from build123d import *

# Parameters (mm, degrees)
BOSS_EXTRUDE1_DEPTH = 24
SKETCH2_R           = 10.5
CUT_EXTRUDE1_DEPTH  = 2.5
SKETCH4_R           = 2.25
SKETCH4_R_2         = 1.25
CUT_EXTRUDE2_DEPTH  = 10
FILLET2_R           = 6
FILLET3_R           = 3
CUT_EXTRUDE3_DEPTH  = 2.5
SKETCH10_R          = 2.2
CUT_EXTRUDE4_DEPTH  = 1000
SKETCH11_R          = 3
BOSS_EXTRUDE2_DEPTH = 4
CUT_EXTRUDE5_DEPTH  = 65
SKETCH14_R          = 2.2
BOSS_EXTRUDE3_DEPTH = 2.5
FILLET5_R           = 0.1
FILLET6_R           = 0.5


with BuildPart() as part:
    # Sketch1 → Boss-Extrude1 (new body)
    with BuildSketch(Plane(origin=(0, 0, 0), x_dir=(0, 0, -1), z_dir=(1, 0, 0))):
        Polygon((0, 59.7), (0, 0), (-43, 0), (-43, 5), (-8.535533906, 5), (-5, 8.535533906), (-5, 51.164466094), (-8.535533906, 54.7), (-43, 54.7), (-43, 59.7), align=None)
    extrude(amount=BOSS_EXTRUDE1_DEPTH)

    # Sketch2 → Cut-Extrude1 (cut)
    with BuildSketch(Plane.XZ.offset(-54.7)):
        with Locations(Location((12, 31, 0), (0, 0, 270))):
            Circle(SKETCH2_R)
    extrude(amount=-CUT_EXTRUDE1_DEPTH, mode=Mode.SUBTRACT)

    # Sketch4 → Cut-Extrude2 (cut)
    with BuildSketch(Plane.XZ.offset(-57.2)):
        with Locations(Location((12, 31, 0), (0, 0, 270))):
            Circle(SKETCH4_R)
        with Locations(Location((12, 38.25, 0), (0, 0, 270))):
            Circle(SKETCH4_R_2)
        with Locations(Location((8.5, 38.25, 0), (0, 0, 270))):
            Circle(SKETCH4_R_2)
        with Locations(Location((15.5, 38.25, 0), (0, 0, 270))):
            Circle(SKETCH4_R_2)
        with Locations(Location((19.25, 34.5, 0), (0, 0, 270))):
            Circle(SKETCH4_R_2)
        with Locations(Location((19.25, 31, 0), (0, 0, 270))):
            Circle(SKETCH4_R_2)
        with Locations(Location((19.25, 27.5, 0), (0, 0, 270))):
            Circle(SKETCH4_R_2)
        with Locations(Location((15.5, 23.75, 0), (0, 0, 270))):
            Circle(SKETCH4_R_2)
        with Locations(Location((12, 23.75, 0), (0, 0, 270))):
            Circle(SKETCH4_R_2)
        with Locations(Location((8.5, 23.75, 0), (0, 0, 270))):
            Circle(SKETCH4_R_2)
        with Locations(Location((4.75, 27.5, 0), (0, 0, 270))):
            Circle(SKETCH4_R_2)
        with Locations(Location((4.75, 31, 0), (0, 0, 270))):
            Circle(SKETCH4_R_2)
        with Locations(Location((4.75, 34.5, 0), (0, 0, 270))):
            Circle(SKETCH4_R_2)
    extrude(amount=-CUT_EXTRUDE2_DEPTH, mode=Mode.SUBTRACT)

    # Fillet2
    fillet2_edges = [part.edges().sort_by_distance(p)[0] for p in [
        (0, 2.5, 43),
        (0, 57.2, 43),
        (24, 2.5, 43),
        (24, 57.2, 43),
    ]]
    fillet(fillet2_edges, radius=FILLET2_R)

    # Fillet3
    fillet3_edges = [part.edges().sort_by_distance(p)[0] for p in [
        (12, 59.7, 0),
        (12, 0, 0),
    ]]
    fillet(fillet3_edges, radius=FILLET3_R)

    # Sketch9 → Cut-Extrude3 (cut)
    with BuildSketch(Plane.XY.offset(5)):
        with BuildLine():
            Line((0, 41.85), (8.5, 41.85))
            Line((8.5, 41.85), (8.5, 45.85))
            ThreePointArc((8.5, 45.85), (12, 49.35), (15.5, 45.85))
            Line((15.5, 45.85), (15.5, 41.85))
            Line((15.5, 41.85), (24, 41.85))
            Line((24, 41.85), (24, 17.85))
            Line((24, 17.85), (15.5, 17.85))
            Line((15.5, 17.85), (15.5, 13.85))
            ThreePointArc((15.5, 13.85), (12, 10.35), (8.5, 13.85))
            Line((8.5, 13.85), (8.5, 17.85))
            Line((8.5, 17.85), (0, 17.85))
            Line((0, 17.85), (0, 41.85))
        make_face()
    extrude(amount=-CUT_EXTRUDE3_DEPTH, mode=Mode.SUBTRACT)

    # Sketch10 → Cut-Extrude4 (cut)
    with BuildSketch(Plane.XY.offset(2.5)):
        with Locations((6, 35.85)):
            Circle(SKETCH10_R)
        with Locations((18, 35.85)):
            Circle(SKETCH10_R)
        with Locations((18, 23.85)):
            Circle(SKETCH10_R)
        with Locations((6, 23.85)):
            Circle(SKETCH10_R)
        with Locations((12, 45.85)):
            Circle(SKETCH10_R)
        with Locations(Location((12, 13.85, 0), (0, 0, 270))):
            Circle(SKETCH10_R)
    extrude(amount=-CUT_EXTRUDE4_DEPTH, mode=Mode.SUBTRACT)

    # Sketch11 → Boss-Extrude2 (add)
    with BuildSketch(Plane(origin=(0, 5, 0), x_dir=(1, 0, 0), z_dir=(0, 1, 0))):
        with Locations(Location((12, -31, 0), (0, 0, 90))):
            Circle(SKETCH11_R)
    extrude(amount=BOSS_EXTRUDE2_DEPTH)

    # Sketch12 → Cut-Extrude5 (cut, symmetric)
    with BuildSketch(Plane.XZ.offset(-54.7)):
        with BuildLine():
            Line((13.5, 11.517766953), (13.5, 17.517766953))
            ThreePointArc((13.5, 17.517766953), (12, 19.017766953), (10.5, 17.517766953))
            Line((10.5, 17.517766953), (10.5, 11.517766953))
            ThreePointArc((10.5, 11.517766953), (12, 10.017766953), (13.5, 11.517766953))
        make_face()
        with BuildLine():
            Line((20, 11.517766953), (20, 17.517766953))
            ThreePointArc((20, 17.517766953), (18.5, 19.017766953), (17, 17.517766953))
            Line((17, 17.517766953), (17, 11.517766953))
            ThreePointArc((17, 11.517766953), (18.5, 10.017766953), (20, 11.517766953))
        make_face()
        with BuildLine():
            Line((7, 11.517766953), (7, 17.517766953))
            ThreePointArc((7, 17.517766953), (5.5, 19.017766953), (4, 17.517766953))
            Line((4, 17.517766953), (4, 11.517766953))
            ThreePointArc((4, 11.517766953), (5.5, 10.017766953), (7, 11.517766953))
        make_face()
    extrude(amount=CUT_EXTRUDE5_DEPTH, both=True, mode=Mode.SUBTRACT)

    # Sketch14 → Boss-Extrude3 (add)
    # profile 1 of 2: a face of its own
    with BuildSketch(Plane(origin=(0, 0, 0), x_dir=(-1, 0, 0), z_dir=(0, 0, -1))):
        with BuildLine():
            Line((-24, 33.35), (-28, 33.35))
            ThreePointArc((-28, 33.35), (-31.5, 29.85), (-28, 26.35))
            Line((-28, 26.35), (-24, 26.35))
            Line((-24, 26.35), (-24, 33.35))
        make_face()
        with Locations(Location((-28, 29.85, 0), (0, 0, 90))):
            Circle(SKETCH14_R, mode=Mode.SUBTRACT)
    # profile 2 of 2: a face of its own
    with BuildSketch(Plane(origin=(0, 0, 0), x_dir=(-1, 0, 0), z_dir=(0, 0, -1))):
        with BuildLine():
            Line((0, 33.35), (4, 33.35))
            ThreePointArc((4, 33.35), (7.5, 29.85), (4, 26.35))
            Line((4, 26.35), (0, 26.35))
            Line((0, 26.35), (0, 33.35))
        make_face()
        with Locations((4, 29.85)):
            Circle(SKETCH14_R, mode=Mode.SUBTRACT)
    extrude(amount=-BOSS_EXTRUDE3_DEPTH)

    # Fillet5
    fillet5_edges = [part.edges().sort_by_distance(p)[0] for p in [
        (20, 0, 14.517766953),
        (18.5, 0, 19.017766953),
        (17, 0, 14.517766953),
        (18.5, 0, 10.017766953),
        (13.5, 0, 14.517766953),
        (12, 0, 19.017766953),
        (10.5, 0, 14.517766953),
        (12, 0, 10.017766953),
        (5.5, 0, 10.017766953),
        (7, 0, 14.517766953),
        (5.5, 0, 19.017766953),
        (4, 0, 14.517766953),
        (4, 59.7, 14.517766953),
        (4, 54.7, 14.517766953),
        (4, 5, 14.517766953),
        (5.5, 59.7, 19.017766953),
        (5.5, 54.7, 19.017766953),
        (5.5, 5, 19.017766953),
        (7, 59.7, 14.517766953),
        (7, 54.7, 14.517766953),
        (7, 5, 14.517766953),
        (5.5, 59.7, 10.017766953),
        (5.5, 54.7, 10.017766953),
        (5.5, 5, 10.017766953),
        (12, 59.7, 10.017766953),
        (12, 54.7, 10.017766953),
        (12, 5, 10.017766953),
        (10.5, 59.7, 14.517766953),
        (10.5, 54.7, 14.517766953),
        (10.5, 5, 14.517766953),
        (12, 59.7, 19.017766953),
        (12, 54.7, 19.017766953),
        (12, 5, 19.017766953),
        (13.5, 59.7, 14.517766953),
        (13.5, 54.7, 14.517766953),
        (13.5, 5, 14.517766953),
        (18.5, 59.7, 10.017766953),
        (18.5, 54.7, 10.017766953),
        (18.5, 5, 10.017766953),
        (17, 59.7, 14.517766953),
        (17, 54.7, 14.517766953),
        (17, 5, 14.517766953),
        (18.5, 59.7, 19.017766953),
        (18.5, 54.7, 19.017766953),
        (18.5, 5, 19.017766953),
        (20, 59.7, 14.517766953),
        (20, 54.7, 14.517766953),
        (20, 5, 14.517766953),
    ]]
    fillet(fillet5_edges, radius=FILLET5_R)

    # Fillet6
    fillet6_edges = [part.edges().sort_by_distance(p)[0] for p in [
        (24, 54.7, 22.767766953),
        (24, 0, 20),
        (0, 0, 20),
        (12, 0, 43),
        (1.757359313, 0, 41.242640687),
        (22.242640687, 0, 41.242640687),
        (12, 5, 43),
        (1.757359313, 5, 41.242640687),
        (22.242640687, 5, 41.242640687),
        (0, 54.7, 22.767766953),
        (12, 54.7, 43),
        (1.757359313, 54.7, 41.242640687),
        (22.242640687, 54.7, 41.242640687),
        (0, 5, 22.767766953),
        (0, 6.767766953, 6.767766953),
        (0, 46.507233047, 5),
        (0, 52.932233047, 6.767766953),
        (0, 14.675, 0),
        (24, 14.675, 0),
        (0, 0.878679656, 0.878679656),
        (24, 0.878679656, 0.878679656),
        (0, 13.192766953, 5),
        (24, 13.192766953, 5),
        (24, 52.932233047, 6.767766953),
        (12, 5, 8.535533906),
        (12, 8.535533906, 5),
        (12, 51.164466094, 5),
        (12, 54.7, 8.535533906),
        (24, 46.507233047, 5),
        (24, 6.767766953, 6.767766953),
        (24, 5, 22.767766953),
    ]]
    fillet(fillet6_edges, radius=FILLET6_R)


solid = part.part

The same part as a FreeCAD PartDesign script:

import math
import FreeCAD as App
import Part
import Sketcher
Q = App.Units.Quantity


def edges_at(feature, points):
    """Names of the edges that pass closest to the given points."""
    edges = feature.Shape.Edges
    near = lambda p: min(range(len(edges)), key=lambda i: edges[i].distToShape(Part.Vertex(*p))[0])
    return sorted({f"Edge{near(p) + 1}" for p in points})


def add_polygon(sketch, points):
    """Adds a closed chain of lines whose ends are joined by coincident constraints."""
    first, n = sketch.GeometryCount, len(points)
    for a, b in zip(points, points[1:] + points[:1]):
        sketch.addGeometry(Part.LineSegment(App.Vector(*a, 0), App.Vector(*b, 0)), False)
    for i in range(n):
        sketch.addConstraint(Sketcher.Constraint("Coincident", first + i, 2, first + (i + 1) % n, 1))

doc = App.newDocument("Part")
body = doc.addObject("PartDesign::Body", "Body")

# Sketch on YZ plane
sketch1 = doc.addObject("Sketcher::SketchObject", "Sketch")
body.addObject(sketch1)
sketch1.AttachmentSupport = (doc.YZ_Plane, [""])
sketch1.MapMode = "FlatFace"
add_polygon(sketch1, [(0, 0), (60, 0), (60, 43), (55, 43), (55, 9), (51, 5), (9, 5), (5, 9), (5, 43), (0, 43)])  # lines 0-9
sketch1.addConstraint(Sketcher.Constraint("Horizontal", 0))
sketch1.addConstraint(Sketcher.Constraint("Vertical", 1))
sketch1.addConstraint(Sketcher.Constraint("Horizontal", 2))
sketch1.addConstraint(Sketcher.Constraint("Vertical", 3))
sketch1.addConstraint(Sketcher.Constraint("Horizontal", 5))
sketch1.addConstraint(Sketcher.Constraint("Vertical", 7))
sketch1.addConstraint(Sketcher.Constraint("Horizontal", 8))
sketch1.addConstraint(Sketcher.Constraint("Vertical", 9))
sketch1.addConstraint(Sketcher.Constraint("Coincident", 9, 2, -1, 1))
sketch1.addConstraint(Sketcher.Constraint("Perpendicular", 4, 6))
sketch1.addConstraint(Sketcher.Constraint("Horizontal", 3, 2, 6, 2))
sketch1.addConstraint(Sketcher.Constraint("Horizontal", 2, 2, 7, 2))
sketch1.addConstraint(Sketcher.Constraint("Equal", 2, 8))
sketch1.addConstraint(Sketcher.Constraint("Equal", 4, 6))
sketch1.addConstraint(Sketcher.Constraint("DistanceX", 2, 2, 2, 1, Q("5 mm")))
sketch1.addConstraint(Sketcher.Constraint("DistanceY", 1, 1, 1, 2, Q("43 mm")))
sketch1.addConstraint(Sketcher.Constraint("Distance", 4, Q("5 mm")))
sketch1.addConstraint(Sketcher.Constraint("DistanceX", 0, 1, 0, 2, Q("59.7 mm")))
sketch1.addConstraint(Sketcher.Constraint("DistanceY", -1, 1, 4, 2, Q("5 mm")))
pad1 = doc.addObject("PartDesign::Pad", "Pad")
body.addObject(pad1)
pad1.Profile = sketch1
pad1.Length = 24

# Sketch on XZ plane
sketch2 = doc.addObject("Sketcher::SketchObject", "Sketch001")
body.addObject(sketch2)
sketch2.AttachmentSupport = (doc.XZ_Plane, [""])
sketch2.MapMode = "FlatFace"
sketch2.AttachmentOffset = App.Placement(App.Vector(0, 0, -54.7), App.Rotation())
sketch2.addGeometry(Part.Circle(App.Vector(12, 31, 0), App.Vector(0, 0, 1), 10), False)
sketch2.addConstraint(Sketcher.Constraint("Diameter", 0, Q("21 mm")))
sketch2.addConstraint(Sketcher.Constraint("DistanceX", -1, 1, 0, 3, Q("12 mm")))
sketch2.addConstraint(Sketcher.Constraint("DistanceY", -1, 1, 0, 3, Q("31 mm")))
pocket1 = doc.addObject("PartDesign::Pocket", "Pocket")
body.addObject(pocket1)
pocket1.Profile = sketch2
pocket1.Length = 2.5

# Sketch on XZ plane
sketch3 = doc.addObject("Sketcher::SketchObject", "Sketch002")
body.addObject(sketch3)
sketch3.AttachmentSupport = (doc.XZ_Plane, [""])
sketch3.MapMode = "FlatFace"
sketch3.AttachmentOffset = App.Placement(App.Vector(0, 0, -57.2), App.Rotation())
sketch3.addGeometry(Part.Circle(App.Vector(12, 31, 0), App.Vector(0, 0, 1), 2.2), False)
sketch3.addGeometry(Part.Circle(App.Vector(12, 38.2, 0), App.Vector(0, 0, 1), 1.2), False)
sketch3.addGeometry(Part.Circle(App.Vector(8.5, 38.2, 0), App.Vector(0, 0, 1), 1.2), False)
sketch3.addGeometry(Part.Circle(App.Vector(15.5, 38.2, 0), App.Vector(0, 0, 1), 1.2), False)
sketch3.addGeometry(Part.Circle(App.Vector(19.2, 34.5, 0), App.Vector(0, 0, 1), 1.2), False)
sketch3.addGeometry(Part.Circle(App.Vector(19.2, 31, 0), App.Vector(0, 0, 1), 1.2), False)
sketch3.addGeometry(Part.Circle(App.Vector(19.2, 27.5, 0), App.Vector(0, 0, 1), 1.2), False)
sketch3.addGeometry(Part.Circle(App.Vector(15.5, 23.8, 0), App.Vector(0, 0, 1), 1.2), False)
sketch3.addGeometry(Part.Circle(App.Vector(12, 23.8, 0), App.Vector(0, 0, 1), 1.2), False)
sketch3.addGeometry(Part.Circle(App.Vector(8.5, 23.8, 0), App.Vector(0, 0, 1), 1.2), False)
sketch3.addGeometry(Part.Circle(App.Vector(4.8, 27.5, 0), App.Vector(0, 0, 1), 1.2), False)
sketch3.addGeometry(Part.Circle(App.Vector(4.8, 31, 0), App.Vector(0, 0, 1), 1.2), False)
sketch3.addGeometry(Part.Circle(App.Vector(4.8, 34.5, 0), App.Vector(0, 0, 1), 1.2), False)
sketch3.addConstraint(Sketcher.Constraint("Equal", 1, 2))
sketch3.addConstraint(Sketcher.Constraint("Equal", 2, 3))
sketch3.addConstraint(Sketcher.Constraint("Equal", 3, 4))
sketch3.addConstraint(Sketcher.Constraint("Equal", 4, 5))
sketch3.addConstraint(Sketcher.Constraint("Equal", 5, 6))
sketch3.addConstraint(Sketcher.Constraint("Equal", 6, 7))
sketch3.addConstraint(Sketcher.Constraint("Equal", 7, 8))
sketch3.addConstraint(Sketcher.Constraint("Equal", 8, 9))
sketch3.addConstraint(Sketcher.Constraint("Equal", 9, 10))
sketch3.addConstraint(Sketcher.Constraint("Equal", 10, 11))
sketch3.addConstraint(Sketcher.Constraint("Equal", 11, 12))
sketch3.addConstraint(Sketcher.Constraint("Horizontal", 1, 3, 2, 3))
sketch3.addConstraint(Sketcher.Constraint("Horizontal", 2, 3, 3, 3))
sketch3.addConstraint(Sketcher.Constraint("Horizontal", 0, 3, 5, 3))
sketch3.addConstraint(Sketcher.Constraint("Horizontal", 7, 3, 8, 3))
sketch3.addConstraint(Sketcher.Constraint("Horizontal", 8, 3, 9, 3))
sketch3.addConstraint(Sketcher.Constraint("Horizontal", 6, 3, 10, 3))
sketch3.addConstraint(Sketcher.Constraint("Horizontal", 5, 3, 11, 3))
sketch3.addConstraint(Sketcher.Constraint("Horizontal", 4, 3, 12, 3))
sketch3.addConstraint(Sketcher.Constraint("Vertical", 0, 3, 1, 3))
sketch3.addConstraint(Sketcher.Constraint("Vertical", 4, 3, 5, 3))
sketch3.addConstraint(Sketcher.Constraint("Vertical", 5, 3, 6, 3))
sketch3.addConstraint(Sketcher.Constraint("Vertical", 3, 3, 7, 3))
sketch3.addConstraint(Sketcher.Constraint("Vertical", 1, 3, 8, 3))
sketch3.addConstraint(Sketcher.Constraint("Vertical", 2, 3, 9, 3))
sketch3.addConstraint(Sketcher.Constraint("Vertical", 10, 3, 11, 3))
sketch3.addConstraint(Sketcher.Constraint("Vertical", 11, 3, 12, 3))
sketch3.addConstraint(Sketcher.Constraint("Diameter", 0, Q("4.5 mm")))
sketch3.addConstraint(Sketcher.Constraint("Diameter", 1, Q("2.5 mm")))
sketch3.addConstraint(Sketcher.Constraint("DistanceX", -1, 1, 0, 3, Q("12 mm")))
sketch3.addConstraint(Sketcher.Constraint("DistanceY", -1, 1, 0, 3, Q("31 mm")))
sketch3.addConstraint(Sketcher.Constraint("DistanceX", 2, 3, 3, 3, Q("7 mm")))
sketch3.addConstraint(Sketcher.Constraint("DistanceY", 6, 3, 4, 3, Q("7 mm")))
sketch3.addConstraint(Sketcher.Constraint("DistanceX", -1, 1, 2, 3, Q("8.5 mm")))
sketch3.addConstraint(Sketcher.Constraint("DistanceY", -1, 1, 4, 3, Q("34.5 mm")))
sketch3.addConstraint(Sketcher.Constraint("DistanceY", 7, 3, 3, 3, Q("14.5 mm")))
sketch3.addConstraint(Sketcher.Constraint("DistanceY", -1, 1, 1, 3, Q("38.25 mm")))
sketch3.addConstraint(Sketcher.Constraint("DistanceX", -1, 1, 4, 3, Q("19.25 mm")))
sketch3.addConstraint(Sketcher.Constraint("DistanceX", -1, 1, 10, 3, Q("4.75 mm")))
pocket2 = doc.addObject("PartDesign::Pocket", "Pocket001")
body.addObject(pocket2)
pocket2.Profile = sketch3
pocket2.Length = 10
doc.recompute()

fillet = doc.addObject("PartDesign::Fillet", "Fillet")
body.addObject(fillet)
fillet.Base = (pocket2, edges_at(pocket2, [
    (0, 2.5, 43),
    (0, 57.2, 43),
    (24, 2.5, 43),
    (24, 57.2, 43),
]))
fillet.Radius = 6
doc.recompute()

fillet2 = doc.addObject("PartDesign::Fillet", "Fillet001")
body.addObject(fillet2)
fillet2.Base = (fillet, edges_at(fillet, [(12, 59.7, 0), (12, 0, 0)]))
fillet2.Radius = 3

# Sketch on XY plane
sketch4 = doc.addObject("Sketcher::SketchObject", "Sketch003")
body.addObject(sketch4)
sketch4.AttachmentSupport = (doc.XY_Plane, [""])
sketch4.MapMode = "FlatFace"
sketch4.AttachmentOffset = App.Placement(App.Vector(0, 0, 5), App.Rotation())
sketch4.addGeometry(Part.LineSegment(App.Vector(8.5, 41.9, 0), App.Vector(0, 41.9, 0)), False)
sketch4.addGeometry(Part.LineSegment(App.Vector(0, 41.9, 0), App.Vector(0, 17.9, 0)), False)
sketch4.addGeometry(Part.LineSegment(App.Vector(0, 17.9, 0), App.Vector(8.5, 17.9, 0)), False)
sketch4.addGeometry(Part.LineSegment(App.Vector(8.5, 17.9, 0), App.Vector(8.5, 13.8, 0)), False)
sketch4.addGeometry(Part.ArcOfCircle(Part.Circle(App.Vector(12, 13.8, 0), App.Vector(0, 0, 1), 3.5), math.radians(180), math.radians(360)), False)
sketch4.addGeometry(Part.LineSegment(App.Vector(15.5, 13.8, 0), App.Vector(15.5, 17.9, 0)), False)
sketch4.addGeometry(Part.LineSegment(App.Vector(15.5, 17.9, 0), App.Vector(24, 17.9, 0)), False)
sketch4.addGeometry(Part.LineSegment(App.Vector(24, 17.9, 0), App.Vector(24, 41.9, 0)), False)
sketch4.addGeometry(Part.LineSegment(App.Vector(24, 41.9, 0), App.Vector(15.5, 41.9, 0)), False)
sketch4.addGeometry(Part.LineSegment(App.Vector(15.5, 41.9, 0), App.Vector(15.5, 45.9, 0)), False)
sketch4.addGeometry(Part.ArcOfCircle(Part.Circle(App.Vector(12, 45.9, 0), App.Vector(0, 0, 1), 3.5), math.radians(0), math.radians(180)), False)
sketch4.addGeometry(Part.LineSegment(App.Vector(8.5, 45.9, 0), App.Vector(8.5, 41.9, 0)), False)
sketch4.addConstraint(Sketcher.Constraint("Coincident", 0, 2, 1, 1))
sketch4.addConstraint(Sketcher.Constraint("Coincident", 1, 2, 2, 1))
sketch4.addConstraint(Sketcher.Constraint("Coincident", 2, 2, 3, 1))
sketch4.addConstraint(Sketcher.Constraint("Tangent", 3, 2, 4, 1))
sketch4.addConstraint(Sketcher.Constraint("Tangent", 4, 2, 5, 1))
sketch4.addConstraint(Sketcher.Constraint("Coincident", 5, 2, 6, 1))
sketch4.addConstraint(Sketcher.Constraint("Coincident", 6, 2, 7, 1))
sketch4.addConstraint(Sketcher.Constraint("Coincident", 7, 2, 8, 1))
sketch4.addConstraint(Sketcher.Constraint("Coincident", 8, 2, 9, 1))
sketch4.addConstraint(Sketcher.Constraint("Tangent", 9, 2, 10, 1))
sketch4.addConstraint(Sketcher.Constraint("Tangent", 10, 2, 11, 1))
sketch4.addConstraint(Sketcher.Constraint("Coincident", 11, 2, 0, 1))
sketch4.addConstraint(Sketcher.Constraint("Horizontal", 0))
sketch4.addConstraint(Sketcher.Constraint("Vertical", 1))
sketch4.addConstraint(Sketcher.Constraint("Horizontal", 2))
sketch4.addConstraint(Sketcher.Constraint("Vertical", 3))
sketch4.addConstraint(Sketcher.Constraint("Vertical", 5))
sketch4.addConstraint(Sketcher.Constraint("Horizontal", 6))
sketch4.addConstraint(Sketcher.Constraint("Vertical", 7))
sketch4.addConstraint(Sketcher.Constraint("Horizontal", 8))
sketch4.addConstraint(Sketcher.Constraint("Vertical", 9))
sketch4.addConstraint(Sketcher.Constraint("Vertical", 11))
sketch4.addConstraint(Sketcher.Constraint("Equal", 4, 10))
sketch4.addConstraint(Sketcher.Constraint("PointOnObject", 0, 2, -2))
sketch4.addConstraint(Sketcher.Constraint("Horizontal", 2, 2, 5, 2))
sketch4.addConstraint(Sketcher.Constraint("Horizontal", 0, 2, 7, 2))
sketch4.addConstraint(Sketcher.Constraint("Vertical", 4, 3, 10, 3))
sketch4.addConstraint(Sketcher.Constraint("Equal", 2, 6))
sketch4.addConstraint(Sketcher.Constraint("Equal", 5, 9))
sketch4.addConstraint(Sketcher.Constraint("Radius", 4, Q("3.5 mm")))
sketch4.addConstraint(Sketcher.Constraint("DistanceY", 1, 2, 1, 1, Q("24 mm")))
sketch4.addConstraint(Sketcher.Constraint("DistanceY", 3, 2, 3, 1, Q("4 mm")))
sketch4.addConstraint(Sketcher.Constraint("DistanceX", 0, 2, 0, 1, Q("8.5 mm")))
sketch4.addConstraint(Sketcher.Constraint("DistanceY", -1, 1, 4, 3, Q("13.85 mm")))
pocket3 = doc.addObject("PartDesign::Pocket", "Pocket002")
body.addObject(pocket3)
pocket3.Profile = sketch4
pocket3.Length = 2.5

# Sketch on XY plane
sketch5 = doc.addObject("Sketcher::SketchObject", "Sketch004")
body.addObject(sketch5)
sketch5.AttachmentSupport = (doc.XY_Plane, [""])
sketch5.MapMode = "FlatFace"
sketch5.AttachmentOffset = App.Placement(App.Vector(0, 0, 2.5), App.Rotation())
sketch5.addGeometry(Part.Circle(App.Vector(6, 35.9, 0), App.Vector(0, 0, 1), 2.2), False)
sketch5.addGeometry(Part.Circle(App.Vector(18, 35.9, 0), App.Vector(0, 0, 1), 2.2), False)
sketch5.addGeometry(Part.Circle(App.Vector(18, 23.9, 0), App.Vector(0, 0, 1), 2.2), False)
sketch5.addGeometry(Part.Circle(App.Vector(6, 23.9, 0), App.Vector(0, 0, 1), 2.2), False)
sketch5.addGeometry(Part.Circle(App.Vector(12, 45.9, 0), App.Vector(0, 0, 1), 2.2), False)
sketch5.addGeometry(Part.Circle(App.Vector(12, 13.8, 0), App.Vector(0, 0, 1), 2.2), False)
sketch5.addConstraint(Sketcher.Constraint("Equal", 0, 1))
sketch5.addConstraint(Sketcher.Constraint("Equal", 1, 2))
sketch5.addConstraint(Sketcher.Constraint("Equal", 2, 3))
sketch5.addConstraint(Sketcher.Constraint("Equal", 3, 4))
sketch5.addConstraint(Sketcher.Constraint("Equal", 4, 5))
sketch5.addConstraint(Sketcher.Constraint("Horizontal", 0, 3, 1, 3))
sketch5.addConstraint(Sketcher.Constraint("Horizontal", 2, 3, 3, 3))
sketch5.addConstraint(Sketcher.Constraint("Vertical", 1, 3, 2, 3))
sketch5.addConstraint(Sketcher.Constraint("Vertical", 0, 3, 3, 3))
sketch5.addConstraint(Sketcher.Constraint("Vertical", 4, 3, 5, 3))
sketch5.addConstraint(Sketcher.Constraint("Diameter", 0, Q("4.4 mm")))
sketch5.addConstraint(Sketcher.Constraint("DistanceX", -1, 1, 0, 3, Q("6 mm")))
sketch5.addConstraint(Sketcher.Constraint("DistanceX", -1, 1, 1, 3, Q("18 mm")))
sketch5.addConstraint(Sketcher.Constraint("DistanceX", -1, 1, 4, 3, Q("12 mm")))
sketch5.addConstraint(Sketcher.Constraint("DistanceY", 2, 3, 1, 3, Q("12 mm")))
sketch5.addConstraint(Sketcher.Constraint("DistanceY", 0, 3, 4, 3, Q("10 mm")))
sketch5.addConstraint(Sketcher.Constraint("DistanceY", 5, 3, 2, 3, Q("10 mm")))
sketch5.addConstraint(Sketcher.Constraint("DistanceY", -1, 1, 0, 3, Q("35.85 mm")))
pocket4 = doc.addObject("PartDesign::Pocket", "Pocket003")
body.addObject(pocket4)
pocket4.Profile = sketch5
pocket4.Length = 1000

# Sketch on XZ plane
sketch6 = doc.addObject("Sketcher::SketchObject", "Sketch005")
body.addObject(sketch6)
sketch6.AttachmentSupport = (doc.XZ_Plane, [""])
sketch6.MapMode = "FlatFace"
sketch6.AttachmentOffset = App.Placement(App.Vector(0, 0, -5), App.Rotation())
sketch6.addGeometry(Part.Circle(App.Vector(12, 31, 0), App.Vector(0, 0, 1), 3), False)
sketch6.addConstraint(Sketcher.Constraint("Diameter", 0, Q("6 mm")))
sketch6.addConstraint(Sketcher.Constraint("DistanceX", -1, 1, 0, 3, Q("12 mm")))
sketch6.addConstraint(Sketcher.Constraint("DistanceY", -1, 1, 0, 3, Q("31 mm")))
pad2 = doc.addObject("PartDesign::Pad", "Pad001")
body.addObject(pad2)
pad2.Profile = sketch6
pad2.Length = 4
pad2.Reversed = True

# Sketch on XZ plane
sketch7 = doc.addObject("Sketcher::SketchObject", "Sketch006")
body.addObject(sketch7)
sketch7.AttachmentSupport = (doc.XZ_Plane, [""])
sketch7.MapMode = "FlatFace"
sketch7.AttachmentOffset = App.Placement(App.Vector(0, 0, -54.7), App.Rotation())
sketch7.addGeometry(Part.LineSegment(App.Vector(13.5, 11.5, 0), App.Vector(13.5, 17.5, 0)), False)
sketch7.addGeometry(Part.ArcOfCircle(Part.Circle(App.Vector(12, 17.5, 0), App.Vector(0, 0, 1), 1.5), math.radians(0), math.radians(180)), False)
sketch7.addGeometry(Part.LineSegment(App.Vector(10.5, 17.5, 0), App.Vector(10.5, 11.5, 0)), False)
sketch7.addGeometry(Part.ArcOfCircle(Part.Circle(App.Vector(12, 11.5, 0), App.Vector(0, 0, 1), 1.5), math.radians(180), math.radians(360)), False)
sketch7.addGeometry(Part.LineSegment(App.Vector(20, 11.5, 0), App.Vector(20, 17.5, 0)), False)
sketch7.addGeometry(Part.ArcOfCircle(Part.Circle(App.Vector(18.5, 17.5, 0), App.Vector(0, 0, 1), 1.5), math.radians(0), math.radians(180)), False)
sketch7.addGeometry(Part.LineSegment(App.Vector(17, 17.5, 0), App.Vector(17, 11.5, 0)), False)
sketch7.addGeometry(Part.ArcOfCircle(Part.Circle(App.Vector(18.5, 11.5, 0), App.Vector(0, 0, 1), 1.5), math.radians(180), math.radians(360)), False)
sketch7.addGeometry(Part.LineSegment(App.Vector(7, 11.5, 0), App.Vector(7, 17.5, 0)), False)
sketch7.addGeometry(Part.ArcOfCircle(Part.Circle(App.Vector(5.5, 17.5, 0), App.Vector(0, 0, 1), 1.5), math.radians(0), math.radians(180)), False)
sketch7.addGeometry(Part.LineSegment(App.Vector(4, 17.5, 0), App.Vector(4, 11.5, 0)), False)
sketch7.addGeometry(Part.ArcOfCircle(Part.Circle(App.Vector(5.5, 11.5, 0), App.Vector(0, 0, 1), 1.5), math.radians(180), math.radians(360)), False)
sketch7.addConstraint(Sketcher.Constraint("Tangent", 0, 2, 1, 1))
sketch7.addConstraint(Sketcher.Constraint("Tangent", 1, 2, 2, 1))
sketch7.addConstraint(Sketcher.Constraint("Tangent", 2, 2, 3, 1))
sketch7.addConstraint(Sketcher.Constraint("Tangent", 3, 2, 0, 1))
sketch7.addConstraint(Sketcher.Constraint("Tangent", 4, 2, 5, 1))
sketch7.addConstraint(Sketcher.Constraint("Tangent", 5, 2, 6, 1))
sketch7.addConstraint(Sketcher.Constraint("Tangent", 6, 2, 7, 1))
sketch7.addConstraint(Sketcher.Constraint("Tangent", 7, 2, 4, 1))
sketch7.addConstraint(Sketcher.Constraint("Tangent", 8, 2, 9, 1))
sketch7.addConstraint(Sketcher.Constraint("Tangent", 9, 2, 10, 1))
sketch7.addConstraint(Sketcher.Constraint("Tangent", 10, 2, 11, 1))
sketch7.addConstraint(Sketcher.Constraint("Tangent", 11, 2, 8, 1))
sketch7.addConstraint(Sketcher.Constraint("Vertical", 0))
sketch7.addConstraint(Sketcher.Constraint("Vertical", 2))
sketch7.addConstraint(Sketcher.Constraint("Vertical", 4))
sketch7.addConstraint(Sketcher.Constraint("Vertical", 6))
sketch7.addConstraint(Sketcher.Constraint("Vertical", 8))
sketch7.addConstraint(Sketcher.Constraint("Vertical", 10))
sketch7.addConstraint(Sketcher.Constraint("Equal", 3, 5))
sketch7.addConstraint(Sketcher.Constraint("Equal", 7, 9))
sketch7.addConstraint(Sketcher.Constraint("Horizontal", 1, 3, 5, 3))
sketch7.addConstraint(Sketcher.Constraint("Horizontal", 3, 3, 7, 3))
sketch7.addConstraint(Sketcher.Constraint("Horizontal", 5, 3, 9, 3))
sketch7.addConstraint(Sketcher.Constraint("Horizontal", 7, 3, 11, 3))
sketch7.addConstraint(Sketcher.Constraint("Radius", 1, Q("1.5 mm")))
sketch7.addConstraint(Sketcher.Constraint("DistanceY", 0, 1, 0, 2, Q("6 mm")))
sketch7.addConstraint(Sketcher.Constraint("DistanceX", -1, 1, 1, 3, Q("12 mm")))
sketch7.addConstraint(Sketcher.Constraint("DistanceX", -1, 1, 4, 2, Q("20 mm")))
sketch7.addConstraint(Sketcher.Constraint("DistanceX", -1, 1, 8, 2, Q("7 mm")))
sketch7.addConstraint(Sketcher.Constraint("DistanceY", -1, 1, 1, 3, Q("17.517767 mm")))
pocket5 = doc.addObject("PartDesign::Pocket", "Pocket004")
body.addObject(pocket5)
pocket5.Profile = sketch7
pocket5.Length = 130
pocket5.Midplane = True

# Sketch on XY plane
sketch8 = doc.addObject("Sketcher::SketchObject", "Sketch007")
body.addObject(sketch8)
sketch8.AttachmentSupport = (doc.XY_Plane, [""])
sketch8.MapMode = "FlatFace"
sketch8.addGeometry(Part.LineSegment(App.Vector(24, 33.4, 0), App.Vector(28, 33.4, 0)), False)
sketch8.addGeometry(Part.ArcOfCircle(Part.Circle(App.Vector(28, 29.9, 0), App.Vector(0, 0, 1), 3.5), math.radians(-90), math.radians(90)), False)
sketch8.addGeometry(Part.LineSegment(App.Vector(28, 26.4, 0), App.Vector(24, 26.4, 0)), False)
sketch8.addGeometry(Part.LineSegment(App.Vector(24, 26.4, 0), App.Vector(24, 33.4, 0)), False)
sketch8.addGeometry(Part.Circle(App.Vector(28, 29.9, 0), App.Vector(0, 0, 1), 2.2), False)
sketch8.addGeometry(Part.LineSegment(App.Vector(-4, 33.4, 0), App.Vector(0, 33.4, 0)), False)
sketch8.addGeometry(Part.LineSegment(App.Vector(0, 33.4, 0), App.Vector(0, 26.4, 0)), False)
sketch8.addGeometry(Part.LineSegment(App.Vector(0, 26.4, 0), App.Vector(-4, 26.4, 0)), False)
sketch8.addGeometry(Part.ArcOfCircle(Part.Circle(App.Vector(-4, 29.9, 0), App.Vector(0, 0, 1), 3.5), math.radians(90), math.radians(270)), False)
sketch8.addGeometry(Part.Circle(App.Vector(-4, 29.9, 0), App.Vector(0, 0, 1), 2.2), False)
sketch8.addConstraint(Sketcher.Constraint("Tangent", 0, 2, 1, 2))
sketch8.addConstraint(Sketcher.Constraint("Tangent", 1, 1, 2, 1))
sketch8.addConstraint(Sketcher.Constraint("Coincident", 2, 2, 3, 1))
sketch8.addConstraint(Sketcher.Constraint("Coincident", 3, 2, 0, 1))
sketch8.addConstraint(Sketcher.Constraint("Coincident", 5, 2, 6, 1))
sketch8.addConstraint(Sketcher.Constraint("Coincident", 6, 2, 7, 1))
sketch8.addConstraint(Sketcher.Constraint("Tangent", 7, 2, 8, 2))
sketch8.addConstraint(Sketcher.Constraint("Tangent", 8, 1, 5, 1))
sketch8.addConstraint(Sketcher.Constraint("Horizontal", 0))
sketch8.addConstraint(Sketcher.Constraint("Horizontal", 2))
sketch8.addConstraint(Sketcher.Constraint("Vertical", 3))
sketch8.addConstraint(Sketcher.Constraint("Horizontal", 5))
sketch8.addConstraint(Sketcher.Constraint("Vertical", 6))
sketch8.addConstraint(Sketcher.Constraint("Horizontal", 7))
sketch8.addConstraint(Sketcher.Constraint("Coincident", 4, 3, 1, 3))
sketch8.addConstraint(Sketcher.Constraint("Coincident", 9, 3, 8, 3))
sketch8.addConstraint(Sketcher.Constraint("Equal", 1, 8))
sketch8.addConstraint(Sketcher.Constraint("Equal", 4, 9))
sketch8.addConstraint(Sketcher.Constraint("PointOnObject", 5, 2, -2))
sketch8.addConstraint(Sketcher.Constraint("Horizontal", 4, 3, 8, 3))
sketch8.addConstraint(Sketcher.Constraint("Equal", 2, 5))
sketch8.addConstraint(Sketcher.Constraint("Diameter", 4, Q("4.4 mm")))
sketch8.addConstraint(Sketcher.Constraint("Radius", 1, Q("3.5 mm")))
sketch8.addConstraint(Sketcher.Constraint("DistanceX", 0, 1, 0, 2, Q("4 mm")))
sketch8.addConstraint(Sketcher.Constraint("DistanceX", -1, 1, 1, 3, Q("28 mm")))
sketch8.addConstraint(Sketcher.Constraint("DistanceY", -1, 1, 1, 3, Q("29.85 mm")))
pad3 = doc.addObject("PartDesign::Pad", "Pad002")
body.addObject(pad3)
pad3.Profile = sketch8
pad3.Length = 2.5
doc.recompute()

fillet3 = doc.addObject("PartDesign::Fillet", "Fillet002")
body.addObject(fillet3)
fillet3.Base = (pad3, edges_at(pad3, [
    (20, 0, 14.518),
    (18.5, 0, 19.018),
    (17, 0, 14.518),
    (18.5, 0, 10.018),
    (13.5, 0, 14.518),
    (12, 0, 19.018),
    (10.5, 0, 14.518),
    (12, 0, 10.018),
    (5.5, 0, 10.018),
    (7, 0, 14.518),
    (5.5, 0, 19.018),
    (4, 0, 14.518),
    (4, 59.7, 14.518),
    (4, 54.7, 14.518),
    (4, 5, 14.518),
    (5.5, 59.7, 19.018),
    (5.5, 54.7, 19.018),
    (5.5, 5, 19.018),
    (7, 59.7, 14.518),
    (7, 54.7, 14.518),
    (7, 5, 14.518),
    (5.5, 59.7, 10.018),
    (5.5, 54.7, 10.018),
    (5.5, 5, 10.018),
    (12, 59.7, 10.018),
    (12, 54.7, 10.018),
    (12, 5, 10.018),
    (10.5, 59.7, 14.518),
    (10.5, 54.7, 14.518),
    (10.5, 5, 14.518),
    (12, 59.7, 19.018),
    (12, 54.7, 19.018),
    (12, 5, 19.018),
    (13.5, 59.7, 14.518),
    (13.5, 54.7, 14.518),
    (13.5, 5, 14.518),
    (18.5, 59.7, 10.018),
    (18.5, 54.7, 10.018),
    (18.5, 5, 10.018),
    (17, 59.7, 14.518),
    (17, 54.7, 14.518),
    (17, 5, 14.518),
    (18.5, 59.7, 19.018),
    (18.5, 54.7, 19.018),
    (18.5, 5, 19.018),
    (20, 59.7, 14.518),
    (20, 54.7, 14.518),
    (20, 5, 14.518),
]))
fillet3.Radius = 0.1
doc.recompute()

fillet4 = doc.addObject("PartDesign::Fillet", "Fillet003")
body.addObject(fillet4)
fillet4.Base = (fillet3, edges_at(fillet3, [
    (24, 54.7, 22.768),
    (24, 0, 20),
    (0, 0, 20),
    (12, 0, 43),
    (1.757, 0, 41.243),
    (22.243, 0, 41.243),
    (12, 5, 43),
    (1.757, 5, 41.243),
    (22.243, 5, 41.243),
    (0, 54.7, 22.768),
    (12, 54.7, 43),
    (1.757, 54.7, 41.243),
    (22.243, 54.7, 41.243),
    (0, 5, 22.768),
    (0, 6.768, 6.768),
    (0, 46.507, 5),
    (0, 52.932, 6.768),
    (0, 14.675, 0),
    (24, 14.675, 0),
    (0, 0.879, 0.879),
    (24, 0.879, 0.879),
    (0, 13.193, 5),
    (24, 13.193, 5),
    (24, 52.932, 6.768),
    (12, 5, 8.536),
    (12, 8.536, 5),
    (12, 51.164, 5),
    (12, 54.7, 8.536),
    (24, 46.507, 5),
    (24, 6.768, 6.768),
    (24, 5, 22.768),
]))
fillet4.Radius = 0.5

doc.recompute()
